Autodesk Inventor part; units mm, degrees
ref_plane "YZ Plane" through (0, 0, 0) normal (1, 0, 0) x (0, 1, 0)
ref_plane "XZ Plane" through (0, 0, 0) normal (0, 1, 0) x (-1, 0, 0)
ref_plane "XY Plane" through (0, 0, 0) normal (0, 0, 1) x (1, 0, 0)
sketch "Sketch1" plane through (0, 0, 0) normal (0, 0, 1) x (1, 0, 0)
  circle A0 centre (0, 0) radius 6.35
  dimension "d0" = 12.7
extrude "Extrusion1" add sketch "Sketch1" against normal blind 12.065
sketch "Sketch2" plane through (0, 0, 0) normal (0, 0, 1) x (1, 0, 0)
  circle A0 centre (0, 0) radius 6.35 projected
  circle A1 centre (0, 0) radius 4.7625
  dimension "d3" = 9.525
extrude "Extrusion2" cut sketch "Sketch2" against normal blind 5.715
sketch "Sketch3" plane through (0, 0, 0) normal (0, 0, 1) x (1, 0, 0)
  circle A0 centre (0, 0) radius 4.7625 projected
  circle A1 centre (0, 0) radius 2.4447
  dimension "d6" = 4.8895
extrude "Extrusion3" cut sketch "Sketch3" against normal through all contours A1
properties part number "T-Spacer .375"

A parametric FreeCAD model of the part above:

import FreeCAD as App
import Part
import Sketcher
Q = App.Units.Quantity

doc = App.newDocument("Part")
body = doc.addObject("PartDesign::Body", "Body")

# Sketch on XY plane
sketch1 = body.newObject("Sketcher::SketchObject", "Sketch")
sketch1.AttachmentSupport = (doc.getObject("XY_Plane"), [""])
sketch1.MapMode = "FlatFace"
sketch1.addGeometry(Part.Circle(App.Vector(0, 0, 0), App.Vector(0, 0, 1), 6), False)
sketch1.addConstraint([
    Sketcher.Constraint("Coincident", 0, 3, -1, 1),
    Sketcher.Constraint("Diameter", 0, Q("0.5 in")),
])
pad1 = body.newObject("PartDesign::Pad", "Pad")
pad1.Profile = sketch1
pad1.Length = Q("0.475 in")
pad1.Reversed = True

# Sketch on XY plane
sketch2 = body.newObject("Sketcher::SketchObject", "Sketch001")
sketch2.AttachmentSupport = (doc.getObject("XY_Plane"), [""])
sketch2.MapMode = "FlatFace"
sketch2.addGeometry([
    Part.Circle(App.Vector(0, 0, 0), App.Vector(0, 0, 1), 6.3),
    Part.Circle(App.Vector(0, 0, 0), App.Vector(0, 0, 1), 4.8),
], False)
sketch2.addConstraint([
    Sketcher.Constraint("Coincident", 0, 3, -1, 1),
    Sketcher.Constraint("Coincident", 1, 3, -1, 1),
    Sketcher.Constraint("Diameter", 1, Q("0.375 in")),
    Sketcher.Constraint("Diameter", 0, Q("0.5 in")),
])
pocket1 = body.newObject("PartDesign::Pocket", "Pocket")
pocket1.Profile = sketch2
pocket1.Length = Q("0.225 in")

# Sketch on XY plane
sketch3 = body.newObject("Sketcher::SketchObject", "Sketch002")
sketch3.AttachmentSupport = (doc.getObject("XY_Plane"), [""])
sketch3.MapMode = "FlatFace"
sketch3.addGeometry(Part.Circle(App.Vector(0, 0, 0), App.Vector(0, 0, 1), 2.4), False)
sketch3.addConstraint([
    Sketcher.Constraint("Coincident", 0, 3, -1, 1),
    Sketcher.Constraint("Diameter", 0, Q("0.1925 in")),
])
pocket2 = body.newObject("PartDesign::Pocket", "Pocket001")
pocket2.Profile = sketch3
pocket2.Type = "ThroughAll"

doc.recompute()
